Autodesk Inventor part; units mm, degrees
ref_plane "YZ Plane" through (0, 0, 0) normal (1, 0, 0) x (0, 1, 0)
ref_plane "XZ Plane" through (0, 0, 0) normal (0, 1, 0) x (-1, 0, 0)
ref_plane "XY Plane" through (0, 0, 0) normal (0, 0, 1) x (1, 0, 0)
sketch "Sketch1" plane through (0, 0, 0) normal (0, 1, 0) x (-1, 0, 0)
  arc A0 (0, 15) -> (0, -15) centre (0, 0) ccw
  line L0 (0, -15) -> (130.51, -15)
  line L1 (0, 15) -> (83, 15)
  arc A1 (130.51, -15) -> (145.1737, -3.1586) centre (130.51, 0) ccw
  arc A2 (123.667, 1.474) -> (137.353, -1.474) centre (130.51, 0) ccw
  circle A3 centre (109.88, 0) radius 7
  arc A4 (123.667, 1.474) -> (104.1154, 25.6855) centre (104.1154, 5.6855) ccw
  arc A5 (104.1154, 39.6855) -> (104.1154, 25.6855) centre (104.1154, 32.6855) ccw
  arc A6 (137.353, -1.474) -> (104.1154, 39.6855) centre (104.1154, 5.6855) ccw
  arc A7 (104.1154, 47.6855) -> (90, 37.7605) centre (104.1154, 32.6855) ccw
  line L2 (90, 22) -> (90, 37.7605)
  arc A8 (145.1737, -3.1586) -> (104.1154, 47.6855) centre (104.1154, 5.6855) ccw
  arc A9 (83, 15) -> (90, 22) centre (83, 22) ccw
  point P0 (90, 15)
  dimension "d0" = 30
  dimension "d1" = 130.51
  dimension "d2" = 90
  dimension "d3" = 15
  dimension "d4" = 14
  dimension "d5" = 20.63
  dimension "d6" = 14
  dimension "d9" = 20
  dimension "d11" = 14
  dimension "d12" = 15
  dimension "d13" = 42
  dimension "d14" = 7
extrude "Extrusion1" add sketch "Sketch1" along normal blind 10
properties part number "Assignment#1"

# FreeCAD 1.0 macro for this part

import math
import FreeCAD as App
import Part
import Sketcher
from FreeCAD import Vector

doc = App.newDocument("Part")
body = doc.addObject("PartDesign::Body", "Body")

sketch1 = body.newObject("Sketcher::SketchObject", "Sketch")
sketch1.AttachmentSupport = (doc.getObject("XZ_Plane"), [""])
sketch1.MapMode = "FlatFace"
sketch1.addGeometry([
    Part.LineSegment(Vector(-83, 15, 0), Vector(0, 15, 0)),
    Part.ArcOfCircle(Part.Circle(Vector(0, 0, 0), Vector(0, 0, 1), 15), math.radians(-90), math.radians(90)),
    Part.LineSegment(Vector(0, -15, 0), Vector(-131, -15, 0)),
    Part.ArcOfCircle(Part.Circle(Vector(-131, 0, 0), Vector(0, 0, 1), 15), math.radians(-168), math.radians(-90)),
    Part.ArcOfCircle(Part.Circle(Vector(-104, 6, 0), Vector(0, 0, 1), 42), math.radians(90), math.radians(192)),
    Part.ArcOfCircle(Part.Circle(Vector(-104, 33, 0), Vector(0, 0, 1), 15), math.radians(20), math.radians(90)),
    Part.LineSegment(Vector(-90, 38, 0), Vector(-90, 22, 0)),
    Part.ArcOfCircle(Part.Circle(Vector(-83, 22, 0), Vector(0, 0, 1), 7), math.radians(180), math.radians(270)),
    Part.Circle(Vector(-110, 0, 0), Vector(0, 0, 1), 7),
    Part.ArcOfCircle(Part.Circle(Vector(-131, 0, 0), Vector(0, 0, 1), 7), math.radians(-168), math.radians(12)),
    Part.ArcOfCircle(Part.Circle(Vector(-104, 6, 0), Vector(0, 0, 1), 20), math.radians(90), math.radians(192)),
    Part.ArcOfCircle(Part.Circle(Vector(-104, 33, 0), Vector(0, 0, 1), 7), math.radians(-90), math.radians(90)),
    Part.ArcOfCircle(Part.Circle(Vector(-104, 6, 0), Vector(0, 0, 1), 34), math.radians(90), math.radians(192)),
], False)
sketch1.addConstraint([
    Sketcher.Constraint("Tangent", 0, 2, 1, 2),
    Sketcher.Constraint("Tangent", 1, 1, 2, 1),
    Sketcher.Constraint("Tangent", 2, 2, 3, 2),
    Sketcher.Constraint("Tangent", 3, 1, 4, 2),
    Sketcher.Constraint("Tangent", 4, 1, 5, 2),
    Sketcher.Constraint("Coincident", 5, 1, 6, 1),
    Sketcher.Constraint("Tangent", 6, 2, 7, 1),
    Sketcher.Constraint("Tangent", 7, 2, 0, 1),
    Sketcher.Constraint("Tangent", 9, 2, 10, 2),
    Sketcher.Constraint("Tangent", 10, 1, 11, 1),
    Sketcher.Constraint("Tangent", 11, 2, 12, 1),
    Sketcher.Constraint("Tangent", 12, 2, 9, 1),
    Sketcher.Constraint("Horizontal", 0),
    Sketcher.Constraint("Horizontal", 2),
    Sketcher.Constraint("Vertical", 6),
    Sketcher.Constraint("Coincident", 1, 3, -1, 1),
    Sketcher.Constraint("Coincident", 9, 3, 3, 3),
    Sketcher.Constraint("Coincident", 10, 3, 4, 3),
    Sketcher.Constraint("Coincident", 11, 3, 5, 3),
    Sketcher.Constraint("Coincident", 12, 3, 4, 3),
    Sketcher.Constraint("Equal", 1, 3),
    Sketcher.Constraint("Equal", 7, 8),
    Sketcher.Constraint("Equal", 8, 9),
    Sketcher.Constraint("PointOnObject", 8, 3, -1),
    Sketcher.Constraint("Vertical", 4, 3, 5, 3),
    Sketcher.Constraint("Diameter", 8, 14.0),
    Sketcher.Constraint("Radius", 1, 15.0),
    Sketcher.Constraint("Radius", 4, 42.0),
    Sketcher.Constraint("DistanceX", 5, 1, -1, 1, 90.0),
    Sketcher.Constraint("DistanceX", 2, 2, 2, 1, 130.51),
    Sketcher.Constraint("DistanceX", 3, 3, 8, 3, 20.63),
    Sketcher.Constraint("DistanceY", 6, 2, 6, 1, 15.7605),
])
pad1 = body.newObject("PartDesign::Pad", "Pad")
pad1.Profile = sketch1
pad1.Length = 10
pad1.Reversed = True

doc.recompute()
